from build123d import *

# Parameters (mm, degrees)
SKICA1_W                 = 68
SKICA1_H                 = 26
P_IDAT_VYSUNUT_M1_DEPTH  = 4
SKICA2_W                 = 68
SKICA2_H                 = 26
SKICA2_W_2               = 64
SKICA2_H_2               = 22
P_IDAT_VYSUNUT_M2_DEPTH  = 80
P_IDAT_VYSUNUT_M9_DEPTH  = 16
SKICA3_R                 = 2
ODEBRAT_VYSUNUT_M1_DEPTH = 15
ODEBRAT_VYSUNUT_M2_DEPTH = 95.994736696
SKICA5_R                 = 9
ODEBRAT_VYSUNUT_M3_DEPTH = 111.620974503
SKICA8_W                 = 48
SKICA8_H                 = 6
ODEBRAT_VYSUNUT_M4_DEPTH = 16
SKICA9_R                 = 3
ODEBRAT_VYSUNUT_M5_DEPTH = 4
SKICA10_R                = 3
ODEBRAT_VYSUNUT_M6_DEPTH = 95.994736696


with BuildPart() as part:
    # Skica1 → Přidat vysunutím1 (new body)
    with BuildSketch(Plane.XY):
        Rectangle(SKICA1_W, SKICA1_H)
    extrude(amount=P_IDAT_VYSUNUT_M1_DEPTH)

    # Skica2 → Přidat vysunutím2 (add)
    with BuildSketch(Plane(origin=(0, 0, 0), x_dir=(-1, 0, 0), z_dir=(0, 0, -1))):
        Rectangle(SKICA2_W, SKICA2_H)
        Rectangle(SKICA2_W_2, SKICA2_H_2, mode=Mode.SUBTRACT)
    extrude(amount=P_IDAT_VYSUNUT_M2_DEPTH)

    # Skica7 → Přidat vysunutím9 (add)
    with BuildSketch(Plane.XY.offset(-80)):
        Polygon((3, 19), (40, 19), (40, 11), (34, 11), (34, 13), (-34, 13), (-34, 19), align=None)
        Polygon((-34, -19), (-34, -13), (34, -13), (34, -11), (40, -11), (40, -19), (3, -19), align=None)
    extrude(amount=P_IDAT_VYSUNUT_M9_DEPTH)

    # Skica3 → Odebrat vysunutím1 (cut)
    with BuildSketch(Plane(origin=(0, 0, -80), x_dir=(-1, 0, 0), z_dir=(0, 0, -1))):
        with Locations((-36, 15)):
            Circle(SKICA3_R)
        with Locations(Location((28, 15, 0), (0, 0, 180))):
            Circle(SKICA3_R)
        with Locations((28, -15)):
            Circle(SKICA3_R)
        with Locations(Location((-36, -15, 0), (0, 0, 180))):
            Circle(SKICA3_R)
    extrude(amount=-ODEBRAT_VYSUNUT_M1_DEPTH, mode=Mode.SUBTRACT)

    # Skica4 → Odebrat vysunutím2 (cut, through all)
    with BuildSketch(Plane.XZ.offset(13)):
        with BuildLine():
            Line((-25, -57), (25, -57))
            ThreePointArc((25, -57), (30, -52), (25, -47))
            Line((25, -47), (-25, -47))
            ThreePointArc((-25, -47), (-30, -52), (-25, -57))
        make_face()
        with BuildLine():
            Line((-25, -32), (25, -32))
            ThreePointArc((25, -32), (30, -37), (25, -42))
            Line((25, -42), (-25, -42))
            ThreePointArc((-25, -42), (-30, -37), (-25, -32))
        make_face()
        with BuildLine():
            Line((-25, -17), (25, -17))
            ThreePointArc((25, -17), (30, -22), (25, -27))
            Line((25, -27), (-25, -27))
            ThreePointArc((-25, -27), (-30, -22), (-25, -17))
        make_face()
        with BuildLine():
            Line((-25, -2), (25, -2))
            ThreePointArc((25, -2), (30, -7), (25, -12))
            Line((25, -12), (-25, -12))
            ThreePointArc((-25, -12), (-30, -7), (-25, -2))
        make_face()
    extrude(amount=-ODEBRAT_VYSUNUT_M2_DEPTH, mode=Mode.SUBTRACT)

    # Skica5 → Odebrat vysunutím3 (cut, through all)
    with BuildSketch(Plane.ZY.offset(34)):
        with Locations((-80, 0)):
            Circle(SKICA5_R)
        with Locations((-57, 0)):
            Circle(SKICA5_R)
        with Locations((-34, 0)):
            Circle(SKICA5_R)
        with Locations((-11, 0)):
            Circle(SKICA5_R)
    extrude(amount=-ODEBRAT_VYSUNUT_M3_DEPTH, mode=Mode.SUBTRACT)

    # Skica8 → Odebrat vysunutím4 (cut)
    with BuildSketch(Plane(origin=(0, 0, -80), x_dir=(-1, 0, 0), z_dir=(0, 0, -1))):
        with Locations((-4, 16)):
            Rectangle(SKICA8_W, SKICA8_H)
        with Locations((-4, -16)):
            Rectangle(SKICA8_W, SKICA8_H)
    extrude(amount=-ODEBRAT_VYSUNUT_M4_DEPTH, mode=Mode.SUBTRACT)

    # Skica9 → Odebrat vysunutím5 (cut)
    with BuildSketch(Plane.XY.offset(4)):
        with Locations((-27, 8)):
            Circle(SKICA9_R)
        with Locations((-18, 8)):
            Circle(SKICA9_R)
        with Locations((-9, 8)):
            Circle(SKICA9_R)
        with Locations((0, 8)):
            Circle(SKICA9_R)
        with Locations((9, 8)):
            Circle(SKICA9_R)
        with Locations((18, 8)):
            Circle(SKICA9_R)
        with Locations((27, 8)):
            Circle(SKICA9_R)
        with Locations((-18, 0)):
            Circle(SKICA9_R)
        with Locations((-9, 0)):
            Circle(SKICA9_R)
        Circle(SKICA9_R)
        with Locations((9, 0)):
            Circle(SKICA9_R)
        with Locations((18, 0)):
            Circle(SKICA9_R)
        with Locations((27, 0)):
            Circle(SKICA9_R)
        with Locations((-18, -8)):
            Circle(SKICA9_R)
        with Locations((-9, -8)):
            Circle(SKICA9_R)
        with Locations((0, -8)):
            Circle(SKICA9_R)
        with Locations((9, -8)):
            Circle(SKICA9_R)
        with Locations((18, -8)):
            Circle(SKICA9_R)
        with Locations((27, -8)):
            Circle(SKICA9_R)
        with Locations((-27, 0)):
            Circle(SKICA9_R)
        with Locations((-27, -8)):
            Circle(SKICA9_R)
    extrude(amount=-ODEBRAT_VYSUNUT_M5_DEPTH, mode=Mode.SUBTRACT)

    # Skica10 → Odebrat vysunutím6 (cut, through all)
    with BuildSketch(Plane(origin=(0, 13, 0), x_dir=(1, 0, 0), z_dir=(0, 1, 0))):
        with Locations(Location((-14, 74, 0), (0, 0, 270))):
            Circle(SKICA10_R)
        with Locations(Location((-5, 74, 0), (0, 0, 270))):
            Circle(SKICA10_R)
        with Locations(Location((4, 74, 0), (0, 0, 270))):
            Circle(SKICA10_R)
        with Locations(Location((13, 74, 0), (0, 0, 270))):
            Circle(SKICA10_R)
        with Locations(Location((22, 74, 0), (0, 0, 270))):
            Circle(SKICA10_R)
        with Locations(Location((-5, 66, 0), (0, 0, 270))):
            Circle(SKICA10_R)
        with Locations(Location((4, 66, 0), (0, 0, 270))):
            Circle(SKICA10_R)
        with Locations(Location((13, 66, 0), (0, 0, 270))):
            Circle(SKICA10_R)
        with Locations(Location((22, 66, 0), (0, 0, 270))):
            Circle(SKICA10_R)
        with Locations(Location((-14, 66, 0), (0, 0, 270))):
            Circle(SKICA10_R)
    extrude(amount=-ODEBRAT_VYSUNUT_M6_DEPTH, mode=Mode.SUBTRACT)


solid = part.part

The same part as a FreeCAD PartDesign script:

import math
import FreeCAD as App
import Part
import Sketcher

doc = App.newDocument("Part")
body = doc.addObject("PartDesign::Body", "Body")

# Sketch on XY plane
sketch1 = body.newObject("Sketcher::SketchObject", "Sketch")
sketch1.AttachmentSupport = (doc.getObject("XY_Plane"), [""])
sketch1.MapMode = "FlatFace"
sketch1.addGeometry([
    Part.LineSegment(App.Vector(-34, 13, 0), App.Vector(-34, -13, 0)),
    Part.LineSegment(App.Vector(-34, -13, 0), App.Vector(34, -13, 0)),
    Part.LineSegment(App.Vector(34, -13, 0), App.Vector(34, 13, 0)),
    Part.LineSegment(App.Vector(34, 13, 0), App.Vector(-34, 13, 0)),
], False)
sketch1.addConstraint([
    Sketcher.Constraint("Coincident", 0, 2, 1, 1),
    Sketcher.Constraint("Coincident", 1, 2, 2, 1),
    Sketcher.Constraint("Coincident", 2, 2, 3, 1),
    Sketcher.Constraint("Coincident", 3, 2, 0, 1),
    Sketcher.Constraint("Vertical", 0),
    Sketcher.Constraint("Horizontal", 1),
    Sketcher.Constraint("Vertical", 2),
    Sketcher.Constraint("Horizontal", 3),
    Sketcher.Constraint("Symmetric", 0, 2, 2, 2, -1, 1),
    Sketcher.Constraint("DistanceX", 1, 1, 1, 2, 68.0),
    Sketcher.Constraint("DistanceY", 0, 2, 0, 1, 26.0),
])
pad1 = body.newObject("PartDesign::Pad", "Pad")
pad1.Profile = sketch1
pad1.Length = 4

# Sketch on XY plane
sketch2 = body.newObject("Sketcher::SketchObject", "Sketch001")
sketch2.AttachmentSupport = (doc.getObject("XY_Plane"), [""])
sketch2.MapMode = "FlatFace"
sketch2.addGeometry([
    Part.LineSegment(App.Vector(34, 13, 0), App.Vector(34, -13, 0)),  # 0
    Part.LineSegment(App.Vector(34, -13, 0), App.Vector(-34, -13, 0)),  # 1
    Part.LineSegment(App.Vector(-34, -13, 0), App.Vector(-34, 13, 0)),  # 2
    Part.LineSegment(App.Vector(-34, 13, 0), App.Vector(34, 13, 0)),  # 3
    Part.LineSegment(App.Vector(-32, -11, 0), App.Vector(32, -11, 0)),  # 4
    Part.LineSegment(App.Vector(32, -11, 0), App.Vector(32, 11, 0)),  # 5
    Part.LineSegment(App.Vector(32, 11, 0), App.Vector(-32, 11, 0)),  # 6
    Part.LineSegment(App.Vector(-32, 11, 0), App.Vector(-32, -11, 0)),  # 7
], False)
sketch2.addConstraint([
    Sketcher.Constraint("Coincident", 0, 2, 1, 1),
    Sketcher.Constraint("Coincident", 1, 2, 2, 1),
    Sketcher.Constraint("Coincident", 2, 2, 3, 1),
    Sketcher.Constraint("Coincident", 3, 2, 0, 1),
    Sketcher.Constraint("Coincident", 4, 2, 5, 1),
    Sketcher.Constraint("Coincident", 5, 2, 6, 1),
    Sketcher.Constraint("Coincident", 6, 2, 7, 1),
    Sketcher.Constraint("Coincident", 7, 2, 4, 1),
    Sketcher.Constraint("Vertical", 0),
    Sketcher.Constraint("Horizontal", 1),
    Sketcher.Constraint("Vertical", 2),
    Sketcher.Constraint("Horizontal", 3),
    Sketcher.Constraint("Horizontal", 4),
    Sketcher.Constraint("Vertical", 5),
    Sketcher.Constraint("Horizontal", 6),
    Sketcher.Constraint("Vertical", 7),
    Sketcher.Constraint("Symmetric", 0, 2, 2, 2, -1, 1),
    Sketcher.Constraint("Symmetric", 4, 2, 6, 2, -1, 1),
    Sketcher.Constraint("DistanceX", 1, 2, 1, 1, 68.0),
    Sketcher.Constraint("DistanceX", 4, 1, 4, 2, 64.0),
    Sketcher.Constraint("DistanceY", 0, 2, 0, 1, 26.0),
    Sketcher.Constraint("DistanceY", 5, 1, 5, 2, 22.0),
])
pad2 = body.newObject("PartDesign::Pad", "Pad001")
pad2.Profile = sketch2
pad2.Length = 80
pad2.Reversed = True

# Sketch on XY plane
sketch3 = body.newObject("Sketcher::SketchObject", "Sketch002")
sketch3.AttachmentSupport = (doc.getObject("XY_Plane"), [""])
sketch3.MapMode = "FlatFace"
sketch3.AttachmentOffset = App.Placement(App.Vector(0, 0, -80), App.Rotation())
sketch3.addGeometry([
    Part.LineSegment(App.Vector(40, 19, 0), App.Vector(-34, 19, 0)),  # 0
    Part.LineSegment(App.Vector(-34, 19, 0), App.Vector(-34, 13, 0)),  # 1
    Part.LineSegment(App.Vector(-34, 13, 0), App.Vector(34, 13, 0)),  # 2
    Part.LineSegment(App.Vector(34, 13, 0), App.Vector(34, 11, 0)),  # 3
    Part.LineSegment(App.Vector(34, 11, 0), App.Vector(40, 11, 0)),  # 4
    Part.LineSegment(App.Vector(40, 11, 0), App.Vector(40, 19, 0)),  # 5
    Part.LineSegment(App.Vector(-34, -13, 0), App.Vector(-34, -19, 0)),  # 6
    Part.LineSegment(App.Vector(-34, -19, 0), App.Vector(40, -19, 0)),  # 7
    Part.LineSegment(App.Vector(40, -19, 0), App.Vector(40, -11, 0)),  # 8
    Part.LineSegment(App.Vector(40, -11, 0), App.Vector(34, -11, 0)),  # 9
    Part.LineSegment(App.Vector(34, -11, 0), App.Vector(34, -13, 0)),  # 10
    Part.LineSegment(App.Vector(34, -13, 0), App.Vector(-34, -13, 0)),  # 11
], False)
sketch3.addConstraint([
    Sketcher.Constraint("Coincident", 0, 2, 1, 1),
    Sketcher.Constraint("Coincident", 1, 2, 2, 1),
    Sketcher.Constraint("Coincident", 2, 2, 3, 1),
    Sketcher.Constraint("Coincident", 3, 2, 4, 1),
    Sketcher.Constraint("Coincident", 4, 2, 5, 1),
    Sketcher.Constraint("Coincident", 5, 2, 0, 1),
    Sketcher.Constraint("Coincident", 6, 2, 7, 1),
    Sketcher.Constraint("Coincident", 7, 2, 8, 1),
    Sketcher.Constraint("Coincident", 8, 2, 9, 1),
    Sketcher.Constraint("Coincident", 9, 2, 10, 1),
    Sketcher.Constraint("Coincident", 10, 2, 11, 1),
    Sketcher.Constraint("Coincident", 11, 2, 6, 1),
    Sketcher.Constraint("Horizontal", 0),
    Sketcher.Constraint("Vertical", 1),
    Sketcher.Constraint("Horizontal", 2),
    Sketcher.Constraint("Vertical", 3),
    Sketcher.Constraint("Horizontal", 4),
    Sketcher.Constraint("Vertical", 5),
    Sketcher.Constraint("Vertical", 6),
    Sketcher.Constraint("Horizontal", 7),
    Sketcher.Constraint("Vertical", 8),
    Sketcher.Constraint("Horizontal", 9),
    Sketcher.Constraint("Vertical", 10),
    Sketcher.Constraint("Horizontal", 11),
    Sketcher.Constraint("Symmetric", 1, 2, 10, 2, -1, 1),
    Sketcher.Constraint("Symmetric", 0, 2, 6, 2, -1),
    Sketcher.Constraint("Symmetric", 4, 2, 8, 2, -1),
    Sketcher.Constraint("Vertical", 3, 2, 9, 2),
    Sketcher.Constraint("Equal", 9, 1),
    Sketcher.Constraint("DistanceX", 0, 2, 0, 1, 74.0),
    Sketcher.Constraint("DistanceX", 2, 1, 2, 2, 68.0),
    Sketcher.Constraint("DistanceY", 3, 2, 3, 1, 2.0),
    Sketcher.Constraint("DistanceY", -1, 1, 0, 2, 19.0),
])
pad3 = body.newObject("PartDesign::Pad", "Pad002")
pad3.Profile = sketch3
pad3.Length = 16

# Sketch on XY plane
sketch4 = body.newObject("Sketcher::SketchObject", "Sketch003")
sketch4.AttachmentSupport = (doc.getObject("XY_Plane"), [""])
sketch4.MapMode = "FlatFace"
sketch4.AttachmentOffset = App.Placement(App.Vector(0, 0, -80), App.Rotation())
sketch4.addGeometry([
    Part.Circle(App.Vector(36, 15, 0), App.Vector(0, 0, 1), 2),
    Part.Circle(App.Vector(-28, 15, 0), App.Vector(0, 0, 1), 2),
    Part.Circle(App.Vector(-28, -15, 0), App.Vector(0, 0, 1), 2),
    Part.Circle(App.Vector(36, -15, 0), App.Vector(0, 0, 1), 2),
], False)
sketch4.addConstraint([
    Sketcher.Constraint("Equal", 0, 1),
    Sketcher.Constraint("Equal", 1, 2),
    Sketcher.Constraint("Equal", 2, 3),
    Sketcher.Constraint("Symmetric", 1, 3, 2, 3, -1),
    Sketcher.Constraint("Symmetric", 0, 3, 3, 3, -1),
    Sketcher.Constraint("Horizontal", 0, 3, 1, 3),
    Sketcher.Constraint("Diameter", 0, 4.0),
    Sketcher.Constraint("DistanceX", -1, 1, 0, 3, 36.0),
    Sketcher.Constraint("DistanceY", -1, 1, 0, 3, 15.0),
    Sketcher.Constraint("DistanceX", 1, 3, -1, 1, 28.0),
])
pocket1 = body.newObject("PartDesign::Pocket", "Pocket")
pocket1.Profile = sketch4
pocket1.Length = 15
pocket1.Reversed = True

# Sketch on XZ plane
sketch5 = body.newObject("Sketcher::SketchObject", "Sketch004")
sketch5.AttachmentSupport = (doc.getObject("XZ_Plane"), [""])
sketch5.MapMode = "FlatFace"
sketch5.AttachmentOffset = App.Placement(App.Vector(0, 0, 13), App.Rotation())
sketch5.addGeometry([
    Part.LineSegment(App.Vector(-25, -57, 0), App.Vector(25, -57, 0)),  # 0
    Part.ArcOfCircle(Part.Circle(App.Vector(25, -52, 0), App.Vector(0, 0, 1), 5), math.radians(-90), math.radians(90)),  # 1
    Part.LineSegment(App.Vector(25, -47, 0), App.Vector(-25, -47, 0)),  # 2
    Part.ArcOfCircle(Part.Circle(App.Vector(-25, -52, 0), App.Vector(0, 0, 1), 5), math.radians(90), math.radians(270)),  # 3
    Part.LineSegment(App.Vector(25, -32, 0), App.Vector(-25, -32, 0)),  # 4
    Part.ArcOfCircle(Part.Circle(App.Vector(-25, -37, 0), App.Vector(0, 0, 1), 5), math.radians(90), math.radians(270)),  # 5
    Part.LineSegment(App.Vector(-25, -42, 0), App.Vector(25, -42, 0)),  # 6
    Part.ArcOfCircle(Part.Circle(App.Vector(25, -37, 0), App.Vector(0, 0, 1), 5), math.radians(-90), math.radians(90)),  # 7
    Part.LineSegment(App.Vector(25, -17, 0), App.Vector(-25, -17, 0)),  # 8
    Part.ArcOfCircle(Part.Circle(App.Vector(-25, -22, 0), App.Vector(0, 0, 1), 5), math.radians(90), math.radians(270)),  # 9
    Part.LineSegment(App.Vector(-25, -27, 0), App.Vector(25, -27, 0)),  # 10
    Part.ArcOfCircle(Part.Circle(App.Vector(25, -22, 0), App.Vector(0, 0, 1), 5), math.radians(-90), math.radians(90)),  # 11
    Part.LineSegment(App.Vector(25, -2, 0), App.Vector(-25, -2, 0)),  # 12
    Part.ArcOfCircle(Part.Circle(App.Vector(-25, -7, 0), App.Vector(0, 0, 1), 5), math.radians(90), math.radians(270)),  # 13
    Part.LineSegment(App.Vector(-25, -12, 0), App.Vector(25, -12, 0)),  # 14
    Part.ArcOfCircle(Part.Circle(App.Vector(25, -7, 0), App.Vector(0, 0, 1), 5), math.radians(-90), math.radians(90)),  # 15
], False)
sketch5.addConstraint([
    Sketcher.Constraint("Tangent", 0, 2, 1, 1),
    Sketcher.Constraint("Tangent", 1, 2, 2, 1),
    Sketcher.Constraint("Tangent", 2, 2, 3, 1),
    Sketcher.Constraint("Tangent", 3, 2, 0, 1),
    Sketcher.Constraint("Tangent", 4, 2, 5, 1),
    Sketcher.Constraint("Tangent", 5, 2, 6, 1),
    Sketcher.Constraint("Tangent", 6, 2, 7, 1),
    Sketcher.Constraint("Tangent", 7, 2, 4, 1),
    Sketcher.Constraint("Tangent", 8, 2, 9, 1),
    Sketcher.Constraint("Tangent", 9, 2, 10, 1),
    Sketcher.Constraint("Tangent", 10, 2, 11, 1),
    Sketcher.Constraint("Tangent", 11, 2, 8, 1),
    Sketcher.Constraint("Tangent", 12, 2, 13, 1),
    Sketcher.Constraint("Tangent", 13, 2, 14, 1),
    Sketcher.Constraint("Tangent", 14, 2, 15, 1),
    Sketcher.Constraint("Tangent", 15, 2, 12, 1),
    Sketcher.Constraint("Horizontal", 0),
    Sketcher.Constraint("Horizontal", 2),
    Sketcher.Constraint("Horizontal", 4),
    Sketcher.Constraint("Horizontal", 6),
    Sketcher.Constraint("Horizontal", 8),
    Sketcher.Constraint("Horizontal", 10),
    Sketcher.Constraint("Horizontal", 12),
    Sketcher.Constraint("Horizontal", 14),
    Sketcher.Constraint("Equal", 3, 5),
    Sketcher.Constraint("Equal", 7, 9),
    Sketcher.Constraint("Equal", 11, 13),
    Sketcher.Constraint("Vertical", 3, 3, 5, 3),
    Sketcher.Constraint("Vertical", 1, 3, 7, 3),
    Sketcher.Constraint("Vertical", 5, 3, 9, 3),
    Sketcher.Constraint("Vertical", 7, 3, 11, 3),
    Sketcher.Constraint("Vertical", 9, 3, 13, 3),
    Sketcher.Constraint("Vertical", 11, 3, 15, 3),
    Sketcher.Constraint("Radius", 1, 5.0),
    Sketcher.Constraint("DistanceX", 0, 1, 0, 2, 50.0),
    Sketcher.Constraint("DistanceX", -1, 1, 1, 3, 25.0),
    Sketcher.Constraint("DistanceY", 1, 3, -1, 1, 52.0),
    Sketcher.Constraint("DistanceY", 5, 3, -1, 1, 37.0),
    Sketcher.Constraint("DistanceY", 9, 3, -1, 1, 22.0),
    Sketcher.Constraint("DistanceY", 13, 3, -1, 1, 7.0),
])
pocket2 = body.newObject("PartDesign::Pocket", "Pocket001")
pocket2.Profile = sketch5
pocket2.Type = "ThroughAll"

# Sketch on YZ plane
sketch6 = body.newObject("Sketcher::SketchObject", "Sketch005")
sketch6.AttachmentSupport = (doc.getObject("YZ_Plane"), [""])
sketch6.MapMode = "FlatFace"
sketch6.AttachmentOffset = App.Placement(App.Vector(0, 0, -34), App.Rotation())
sketch6.addGeometry([
    Part.Circle(App.Vector(0, -80, 0), App.Vector(0, 0, 1), 9),
    Part.Circle(App.Vector(0, -57, 0), App.Vector(0, 0, 1), 9),
    Part.Circle(App.Vector(0, -34, 0), App.Vector(0, 0, 1), 9),
    Part.Circle(App.Vector(0, -11, 0), App.Vector(0, 0, 1), 9),
], False)
sketch6.addConstraint([
    Sketcher.Constraint("Equal", 0, 1),
    Sketcher.Constraint("Equal", 1, 2),
    Sketcher.Constraint("Equal", 2, 3),
    Sketcher.Constraint("PointOnObject", 0, 3, -2),
    Sketcher.Constraint("PointOnObject", 1, 3, -2),
    Sketcher.Constraint("PointOnObject", 2, 3, -2),
    Sketcher.Constraint("PointOnObject", 3, 3, -2),
    Sketcher.Constraint("Diameter", 0, 18.0),
    Sketcher.Constraint("DistanceY", 0, 3, -1, 1, 80.0),
    Sketcher.Constraint("DistanceY", 1, 3, -1, 1, 57.0),
    Sketcher.Constraint("DistanceY", 2, 3, -1, 1, 34.0),
    Sketcher.Constraint("DistanceY", 3, 3, -1, 1, 11.0),
])
pocket3 = body.newObject("PartDesign::Pocket", "Pocket002")
pocket3.Profile = sketch6
pocket3.Type = "ThroughAll"
pocket3.Reversed = True

# Sketch on XY plane
sketch7 = body.newObject("Sketcher::SketchObject", "Sketch006")
sketch7.AttachmentSupport = (doc.getObject("XY_Plane"), [""])
sketch7.MapMode = "FlatFace"
sketch7.AttachmentOffset = App.Placement(App.Vector(0, 0, -80), App.Rotation())
sketch7.addGeometry([
    Part.LineSegment(App.Vector(28, 19, 0), App.Vector(28, 13, 0)),  # 0
    Part.LineSegment(App.Vector(28, 13, 0), App.Vector(-20, 13, 0)),  # 1
    Part.LineSegment(App.Vector(-20, 13, 0), App.Vector(-20, 19, 0)),  # 2
    Part.LineSegment(App.Vector(-20, 19, 0), App.Vector(28, 19, 0)),  # 3
    Part.LineSegment(App.Vector(28, -13, 0), App.Vector(28, -19, 0)),  # 4
    Part.LineSegment(App.Vector(28, -19, 0), App.Vector(-20, -19, 0)),  # 5
    Part.LineSegment(App.Vector(-20, -19, 0), App.Vector(-20, -13, 0)),  # 6
    Part.LineSegment(App.Vector(-20, -13, 0), App.Vector(28, -13, 0)),  # 7
], False)
sketch7.addConstraint([
    Sketcher.Constraint("Coincident", 0, 2, 1, 1),
    Sketcher.Constraint("Coincident", 1, 2, 2, 1),
    Sketcher.Constraint("Coincident", 2, 2, 3, 1),
    Sketcher.Constraint("Coincident", 3, 2, 0, 1),
    Sketcher.Constraint("Coincident", 4, 2, 5, 1),
    Sketcher.Constraint("Coincident", 5, 2, 6, 1),
    Sketcher.Constraint("Coincident", 6, 2, 7, 1),
    Sketcher.Constraint("Coincident", 7, 2, 4, 1),
    Sketcher.Constraint("Vertical", 0),
    Sketcher.Constraint("Horizontal", 1),
    Sketcher.Constraint("Vertical", 2),
    Sketcher.Constraint("Horizontal", 3),
    Sketcher.Constraint("Vertical", 4),
    Sketcher.Constraint("Horizontal", 5),
    Sketcher.Constraint("Vertical", 6),
    Sketcher.Constraint("Horizontal", 7),
    Sketcher.Constraint("Symmetric", 3, 2, 4, 2, -1),
    Sketcher.Constraint("Symmetric", 1, 2, 6, 2, -1),
    Sketcher.Constraint("DistanceX", 1, 2, 1, 1, 48.0),
    Sketcher.Constraint("DistanceY", 0, 2, 0, 1, 6.0),
    Sketcher.Constraint("DistanceX", -1, 1, 0, 2, 28.0),
    Sketcher.Constraint("DistanceY", -1, 1, 0, 2, 13.0),
])
pocket4 = body.newObject("PartDesign::Pocket", "Pocket003")
pocket4.Profile = sketch7
pocket4.Length = 16
pocket4.Reversed = True

# Sketch on XY plane
sketch8 = body.newObject("Sketcher::SketchObject", "Sketch007")
sketch8.AttachmentSupport = (doc.getObject("XY_Plane"), [""])
sketch8.MapMode = "FlatFace"
sketch8.AttachmentOffset = App.Placement(App.Vector(0, 0, 4), App.Rotation())
sketch8.addGeometry([
    Part.Circle(App.Vector(-27, 8, 0), App.Vector(0, 0, 1), 3),  # 0
    Part.Circle(App.Vector(-18, 8, 0), App.Vector(0, 0, 1), 3),  # 1
    Part.Circle(App.Vector(-9, 8, 0), App.Vector(0, 0, 1), 3),  # 2
    Part.Circle(App.Vector(0, 8, 0), App.Vector(0, 0, 1), 3),  # 3
    Part.Circle(App.Vector(9, 8, 0), App.Vector(0, 0, 1), 3),  # 4
    Part.Circle(App.Vector(18, 8, 0), App.Vector(0, 0, 1), 3),  # 5
    Part.Circle(App.Vector(27, 8, 0), App.Vector(0, 0, 1), 3),  # 6
    Part.Circle(App.Vector(-18, 0, 0), App.Vector(0, 0, 1), 3),  # 7
    Part.Circle(App.Vector(-9, 0, 0), App.Vector(0, 0, 1), 3),  # 8
    Part.Circle(App.Vector(0, 0, 0), App.Vector(0, 0, 1), 3),  # 9
    Part.Circle(App.Vector(9, 0, 0), App.Vector(0, 0, 1), 3),  # 10
    Part.Circle(App.Vector(18, 0, 0), App.Vector(0, 0, 1), 3),  # 11
    Part.Circle(App.Vector(27, 0, 0), App.Vector(0, 0, 1), 3),  # 12
    Part.Circle(App.Vector(-18, -8, 0), App.Vector(0, 0, 1), 3),  # 13
    Part.Circle(App.Vector(-9, -8, 0), App.Vector(0, 0, 1), 3),  # 14
    Part.Circle(App.Vector(0, -8, 0), App.Vector(0, 0, 1), 3),  # 15
    Part.Circle(App.Vector(9, -8, 0), App.Vector(0, 0, 1), 3),  # 16
    Part.Circle(App.Vector(18, -8, 0), App.Vector(0, 0, 1), 3),  # 17
    Part.Circle(App.Vector(27, -8, 0), App.Vector(0, 0, 1), 3),  # 18
    Part.Circle(App.Vector(-27, 0, 0), App.Vector(0, 0, 1), 3),  # 19
    Part.Circle(App.Vector(-27, -8, 0), App.Vector(0, 0, 1), 3),  # 20
], False)
sketch8.addConstraint([
    Sketcher.Constraint("Coincident", 9, 3, -1, 1),
    Sketcher.Constraint("Equal", 0, 1),
    Sketcher.Constraint("Equal", 1, 2),
    Sketcher.Constraint("Equal", 2, 3),
    Sketcher.Constraint("Equal", 3, 4),
    Sketcher.Constraint("Equal", 4, 5),
    Sketcher.Constraint("Equal", 5, 6),
    Sketcher.Constraint("Equal", 6, 7),
    Sketcher.Constraint("Equal", 7, 8),
    Sketcher.Constraint("Equal", 8, 9),
    Sketcher.Constraint("Equal", 9, 10),
    Sketcher.Constraint("Equal", 10, 11),
    Sketcher.Constraint("Equal", 11, 12),
    Sketcher.Constraint("Equal", 12, 13),
    Sketcher.Constraint("Equal", 13, 14),
    Sketcher.Constraint("Equal", 14, 15),
    Sketcher.Constraint("Equal", 15, 16),
    Sketcher.Constraint("Equal", 16, 17),
    Sketcher.Constraint("Equal", 17, 18),
    Sketcher.Constraint("Equal", 18, 19),
    Sketcher.Constraint("Equal", 19, 20),
    Sketcher.Constraint("Symmetric", 8, 3, 10, 3, -1, 1),
    Sketcher.Constraint("Symmetric", 7, 3, 11, 3, -1, 1),
    Sketcher.Constraint("Symmetric", 5, 3, 13, 3, -1, 1),
    Sketcher.Constraint("Symmetric", 4, 3, 14, 3, -1, 1),
    Sketcher.Constraint("Symmetric", 3, 3, 15, 3, -1, 1),
    Sketcher.Constraint("Symmetric", 2, 3, 16, 3, -1, 1),
    Sketcher.Constraint("Symmetric", 1, 3, 17, 3, -1, 1),
    Sketcher.Constraint("Symmetric", 0, 3, 18, 3, -1, 1),
    Sketcher.Constraint("Symmetric", 12, 3, 19, 3, -1, 1),
    Sketcher.Constraint("Symmetric", 6, 3, 20, 3, -1, 1),
    Sketcher.Constraint("Symmetric", 2, 3, 4, 3, -2),
    Sketcher.Constraint("Symmetric", 1, 3, 5, 3, -2),
    Sketcher.Constraint("Symmetric", 0, 3, 6, 3, -2),
    Sketcher.Constraint("PointOnObject", 3, 3, -2),
    Sketcher.Constraint("PointOnObject", 7, 3, -1),
    Sketcher.Constraint("PointOnObject", 8, 3, -1),
    Sketcher.Constraint("PointOnObject", 12, 3, -1),
    Sketcher.Constraint("Horizontal", 0, 3, 1, 3),
    Sketcher.Constraint("Horizontal", 1, 3, 2, 3),
    Sketcher.Constraint("Horizontal", 2, 3, 3, 3),
    Sketcher.Constraint("Vertical", 1, 3, 7, 3),
    Sketcher.Constraint("Vertical", 2, 3, 8, 3),
    Sketcher.Constraint("Vertical", 6, 3, 12, 3),
    Sketcher.Constraint("Diameter", 0, 6.0),
    Sketcher.Constraint("DistanceX", 0, 3, -1, 1, 27.0),
    Sketcher.Constraint("DistanceY", -1, 1, 0, 3, 8.0),
    Sketcher.Constraint("DistanceX", 1, 3, -1, 1, 18.0),
    Sketcher.Constraint("DistanceX", 2, 3, -1, 1, 9.0),
])
pocket5 = body.newObject("PartDesign::Pocket", "Pocket004")
pocket5.Profile = sketch8
pocket5.Length = 4

# Sketch on XZ plane
sketch9 = body.newObject("Sketcher::SketchObject", "Sketch008")
sketch9.AttachmentSupport = (doc.getObject("XZ_Plane"), [""])
sketch9.MapMode = "FlatFace"
sketch9.AttachmentOffset = App.Placement(App.Vector(0, 0, -13), App.Rotation())
sketch9.addGeometry([
    Part.Circle(App.Vector(-14, -74, 0), App.Vector(0, 0, 1), 3),  # 0
    Part.Circle(App.Vector(-5, -74, 0), App.Vector(0, 0, 1), 3),  # 1
    Part.Circle(App.Vector(4, -74, 0), App.Vector(0, 0, 1), 3),  # 2
    Part.Circle(App.Vector(13, -74, 0), App.Vector(0, 0, 1), 3),  # 3
    Part.Circle(App.Vector(22, -74, 0), App.Vector(0, 0, 1), 3),  # 4
    Part.Circle(App.Vector(-5, -66, 0), App.Vector(0, 0, 1), 3),  # 5
    Part.Circle(App.Vector(4, -66, 0), App.Vector(0, 0, 1), 3),  # 6
    Part.Circle(App.Vector(13, -66, 0), App.Vector(0, 0, 1), 3),  # 7
    Part.Circle(App.Vector(22, -66, 0), App.Vector(0, 0, 1), 3),  # 8
    Part.Circle(App.Vector(-14, -66, 0), App.Vector(0, 0, 1), 3),  # 9
], False)
sketch9.addConstraint([
    Sketcher.Constraint("Equal", 0, 1),
    Sketcher.Constraint("Equal", 1, 2),
    Sketcher.Constraint("Equal", 2, 3),
    Sketcher.Constraint("Equal", 3, 4),
    Sketcher.Constraint("Equal", 4, 5),
    Sketcher.Constraint("Equal", 5, 6),
    Sketcher.Constraint("Equal", 6, 7),
    Sketcher.Constraint("Equal", 7, 8),
    Sketcher.Constraint("Equal", 8, 9),
    Sketcher.Constraint("Horizontal", 0, 3, 1, 3),
    Sketcher.Constraint("Horizontal", 1, 3, 2, 3),
    Sketcher.Constraint("Horizontal", 2, 3, 3, 3),
    Sketcher.Constraint("Horizontal", 3, 3, 4, 3),
    Sketcher.Constraint("Horizontal", 5, 3, 6, 3),
    Sketcher.Constraint("Horizontal", 6, 3, 7, 3),
    Sketcher.Constraint("Horizontal", 7, 3, 8, 3),
    Sketcher.Constraint("Horizontal", 8, 3, 9, 3),
    Sketcher.Constraint("Vertical", 1, 3, 5, 3),
    Sketcher.Constraint("Vertical", 2, 3, 6, 3),
    Sketcher.Constraint("Vertical", 3, 3, 7, 3),
    Sketcher.Constraint("Vertical", 4, 3, 8, 3),
    Sketcher.Constraint("Vertical", 0, 3, 9, 3),
    Sketcher.Constraint("Diameter", 0, 6.0),
    Sketcher.Constraint("DistanceX", 0, 3, -1, 1, 14.0),
    Sketcher.Constraint("DistanceY", 0, 3, -1, 1, 74.0),
    Sketcher.Constraint("DistanceX", 1, 3, -1, 1, 5.0),
    Sketcher.Constraint("DistanceX", -1, 1, 2, 3, 4.0),
    Sketcher.Constraint("DistanceX", -1, 1, 3, 3, 13.0),
    Sketcher.Constraint("DistanceX", -1, 1, 4, 3, 22.0),
    Sketcher.Constraint("DistanceY", 5, 3, -1, 1, 66.0),
])
pocket6 = body.newObject("PartDesign::Pocket", "Pocket005")
pocket6.Profile = sketch9
pocket6.Type = "ThroughAll"
pocket6.Reversed = True

doc.recompute()
